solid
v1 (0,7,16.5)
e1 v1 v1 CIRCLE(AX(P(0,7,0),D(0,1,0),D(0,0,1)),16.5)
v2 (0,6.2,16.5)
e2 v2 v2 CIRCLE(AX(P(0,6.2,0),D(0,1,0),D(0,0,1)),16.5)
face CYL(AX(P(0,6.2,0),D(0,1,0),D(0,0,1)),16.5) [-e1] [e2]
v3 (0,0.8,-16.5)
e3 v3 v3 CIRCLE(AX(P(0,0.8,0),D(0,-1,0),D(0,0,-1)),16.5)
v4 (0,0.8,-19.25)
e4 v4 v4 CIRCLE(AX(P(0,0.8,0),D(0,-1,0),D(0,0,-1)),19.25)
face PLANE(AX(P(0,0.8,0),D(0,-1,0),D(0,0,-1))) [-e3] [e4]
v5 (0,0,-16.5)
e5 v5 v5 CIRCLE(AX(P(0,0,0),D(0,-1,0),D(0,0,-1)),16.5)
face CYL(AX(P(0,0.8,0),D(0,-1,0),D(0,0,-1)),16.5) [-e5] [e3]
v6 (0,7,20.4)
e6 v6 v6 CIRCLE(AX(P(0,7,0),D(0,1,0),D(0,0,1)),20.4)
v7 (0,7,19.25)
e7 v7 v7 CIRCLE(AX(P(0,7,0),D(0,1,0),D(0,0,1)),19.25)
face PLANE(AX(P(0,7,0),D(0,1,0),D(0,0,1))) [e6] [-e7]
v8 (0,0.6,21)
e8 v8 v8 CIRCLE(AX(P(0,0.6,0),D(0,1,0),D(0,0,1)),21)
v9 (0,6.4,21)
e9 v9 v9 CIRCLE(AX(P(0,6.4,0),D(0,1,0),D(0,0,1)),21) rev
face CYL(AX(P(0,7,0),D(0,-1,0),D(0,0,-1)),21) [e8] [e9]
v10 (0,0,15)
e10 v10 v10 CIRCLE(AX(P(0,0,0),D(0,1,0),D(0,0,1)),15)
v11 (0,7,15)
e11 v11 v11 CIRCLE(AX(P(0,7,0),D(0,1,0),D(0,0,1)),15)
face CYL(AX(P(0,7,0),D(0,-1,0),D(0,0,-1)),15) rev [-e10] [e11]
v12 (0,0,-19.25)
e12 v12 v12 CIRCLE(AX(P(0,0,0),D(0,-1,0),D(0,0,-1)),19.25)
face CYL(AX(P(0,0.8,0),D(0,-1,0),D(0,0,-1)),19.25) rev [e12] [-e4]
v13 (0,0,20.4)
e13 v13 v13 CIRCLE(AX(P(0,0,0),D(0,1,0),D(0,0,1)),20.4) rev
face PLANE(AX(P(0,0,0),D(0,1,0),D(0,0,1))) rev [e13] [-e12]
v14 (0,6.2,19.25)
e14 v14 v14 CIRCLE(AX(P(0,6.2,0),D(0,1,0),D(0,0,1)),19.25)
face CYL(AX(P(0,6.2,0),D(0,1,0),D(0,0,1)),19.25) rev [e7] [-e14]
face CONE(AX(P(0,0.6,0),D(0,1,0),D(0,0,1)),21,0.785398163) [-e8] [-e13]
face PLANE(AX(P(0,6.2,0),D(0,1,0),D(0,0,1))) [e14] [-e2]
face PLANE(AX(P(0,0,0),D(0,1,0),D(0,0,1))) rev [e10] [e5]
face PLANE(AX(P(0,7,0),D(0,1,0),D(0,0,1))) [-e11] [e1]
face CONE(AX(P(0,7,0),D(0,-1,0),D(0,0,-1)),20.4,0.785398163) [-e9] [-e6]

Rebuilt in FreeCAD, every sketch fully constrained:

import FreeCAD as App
import Part
import Sketcher
from FreeCAD import Vector


def edges_at(feature, points):
    """Names of the edges that pass closest to the given points."""
    edges = feature.Shape.Edges
    near = lambda p: min(range(len(edges)), key=lambda i: edges[i].distToShape(Part.Vertex(*p))[0])
    return sorted({f"Edge{near(p) + 1}" for p in points})

doc = App.newDocument("Part")
body = doc.addObject("PartDesign::Body", "Body")

sketch1 = body.newObject("Sketcher::SketchObject", "Sketch")
sketch1.AttachmentSupport = (doc.getObject("XZ_Plane"), [""])
sketch1.MapMode = "FlatFace"
sketch1.addGeometry([
    Part.Circle(Vector(0, 0, 0), Vector(0, 0, 1), 21),
    Part.Circle(Vector(0, 0, 0), Vector(0, 0, 1), 15),
], False)
sketch1.addConstraint([
    Sketcher.Constraint("Coincident", 0, 3, -1, 1),
    Sketcher.Constraint("Coincident", 1, 3, -1, 1),
    Sketcher.Constraint("Diameter", 0, 42.0),
    Sketcher.Constraint("Diameter", 1, 30.0),
])
pad1 = body.newObject("PartDesign::Pad", "Pad")
pad1.Profile = sketch1
pad1.Length = 7
pad1.Reversed = True
doc.recompute()

chamfer = body.newObject("PartDesign::Chamfer", "Chamfer")
chamfer.Base = (pad1, edges_at(pad1, [(0, 0, -21), (0, 7, -21)]))
chamfer.Size = 0.6

sketch2 = body.newObject("Sketcher::SketchObject", "Sketch001")
sketch2.AttachmentSupport = (doc.getObject("XZ_Plane"), [""])
sketch2.MapMode = "FlatFace"
sketch2.AttachmentOffset = App.Placement(Vector(0, 0, -7), App.Rotation())
sketch2.addGeometry([
    Part.Circle(Vector(0, 0, 0), Vector(0, 0, 1), 19),
    Part.Circle(Vector(0, 0, 0), Vector(0, 0, 1), 16),
], False)
sketch2.addConstraint([
    Sketcher.Constraint("Coincident", 0, 3, -1, 1),
    Sketcher.Constraint("Coincident", 1, 3, -1, 1),
    Sketcher.Constraint("Diameter", 1, 33.0),
    Sketcher.Constraint("Diameter", 0, 38.5),
])
pocket1 = body.newObject("PartDesign::Pocket", "Pocket")
pocket1.Profile = sketch2
pocket1.Length = 0.8
pocket1.Reversed = True

sketch3 = body.newObject("Sketcher::SketchObject", "Sketch002")
sketch3.AttachmentSupport = (doc.getObject("XZ_Plane"), [""])
sketch3.MapMode = "FlatFace"
sketch3.AttachmentOffset = App.Placement(Vector(0, 0, -0.8), App.Rotation())
sketch3.addGeometry([
    Part.Circle(Vector(0, 0, 0), Vector(0, 0, 1), 19),
    Part.Circle(Vector(0, 0, 0), Vector(0, 0, 1), 16),
], False)
sketch3.addConstraint([
    Sketcher.Constraint("Coincident", 0, 3, -1, 1),
    Sketcher.Constraint("Coincident", 1, 3, -1, 1),
    Sketcher.Constraint("Diameter", 1, 33.0),
    Sketcher.Constraint("Diameter", 0, 38.5),
])
pocket2 = body.newObject("PartDesign::Pocket", "Pocket001")
pocket2.Profile = sketch3
pocket2.Length = 0.8
pocket2.Reversed = True

doc.recompute()
